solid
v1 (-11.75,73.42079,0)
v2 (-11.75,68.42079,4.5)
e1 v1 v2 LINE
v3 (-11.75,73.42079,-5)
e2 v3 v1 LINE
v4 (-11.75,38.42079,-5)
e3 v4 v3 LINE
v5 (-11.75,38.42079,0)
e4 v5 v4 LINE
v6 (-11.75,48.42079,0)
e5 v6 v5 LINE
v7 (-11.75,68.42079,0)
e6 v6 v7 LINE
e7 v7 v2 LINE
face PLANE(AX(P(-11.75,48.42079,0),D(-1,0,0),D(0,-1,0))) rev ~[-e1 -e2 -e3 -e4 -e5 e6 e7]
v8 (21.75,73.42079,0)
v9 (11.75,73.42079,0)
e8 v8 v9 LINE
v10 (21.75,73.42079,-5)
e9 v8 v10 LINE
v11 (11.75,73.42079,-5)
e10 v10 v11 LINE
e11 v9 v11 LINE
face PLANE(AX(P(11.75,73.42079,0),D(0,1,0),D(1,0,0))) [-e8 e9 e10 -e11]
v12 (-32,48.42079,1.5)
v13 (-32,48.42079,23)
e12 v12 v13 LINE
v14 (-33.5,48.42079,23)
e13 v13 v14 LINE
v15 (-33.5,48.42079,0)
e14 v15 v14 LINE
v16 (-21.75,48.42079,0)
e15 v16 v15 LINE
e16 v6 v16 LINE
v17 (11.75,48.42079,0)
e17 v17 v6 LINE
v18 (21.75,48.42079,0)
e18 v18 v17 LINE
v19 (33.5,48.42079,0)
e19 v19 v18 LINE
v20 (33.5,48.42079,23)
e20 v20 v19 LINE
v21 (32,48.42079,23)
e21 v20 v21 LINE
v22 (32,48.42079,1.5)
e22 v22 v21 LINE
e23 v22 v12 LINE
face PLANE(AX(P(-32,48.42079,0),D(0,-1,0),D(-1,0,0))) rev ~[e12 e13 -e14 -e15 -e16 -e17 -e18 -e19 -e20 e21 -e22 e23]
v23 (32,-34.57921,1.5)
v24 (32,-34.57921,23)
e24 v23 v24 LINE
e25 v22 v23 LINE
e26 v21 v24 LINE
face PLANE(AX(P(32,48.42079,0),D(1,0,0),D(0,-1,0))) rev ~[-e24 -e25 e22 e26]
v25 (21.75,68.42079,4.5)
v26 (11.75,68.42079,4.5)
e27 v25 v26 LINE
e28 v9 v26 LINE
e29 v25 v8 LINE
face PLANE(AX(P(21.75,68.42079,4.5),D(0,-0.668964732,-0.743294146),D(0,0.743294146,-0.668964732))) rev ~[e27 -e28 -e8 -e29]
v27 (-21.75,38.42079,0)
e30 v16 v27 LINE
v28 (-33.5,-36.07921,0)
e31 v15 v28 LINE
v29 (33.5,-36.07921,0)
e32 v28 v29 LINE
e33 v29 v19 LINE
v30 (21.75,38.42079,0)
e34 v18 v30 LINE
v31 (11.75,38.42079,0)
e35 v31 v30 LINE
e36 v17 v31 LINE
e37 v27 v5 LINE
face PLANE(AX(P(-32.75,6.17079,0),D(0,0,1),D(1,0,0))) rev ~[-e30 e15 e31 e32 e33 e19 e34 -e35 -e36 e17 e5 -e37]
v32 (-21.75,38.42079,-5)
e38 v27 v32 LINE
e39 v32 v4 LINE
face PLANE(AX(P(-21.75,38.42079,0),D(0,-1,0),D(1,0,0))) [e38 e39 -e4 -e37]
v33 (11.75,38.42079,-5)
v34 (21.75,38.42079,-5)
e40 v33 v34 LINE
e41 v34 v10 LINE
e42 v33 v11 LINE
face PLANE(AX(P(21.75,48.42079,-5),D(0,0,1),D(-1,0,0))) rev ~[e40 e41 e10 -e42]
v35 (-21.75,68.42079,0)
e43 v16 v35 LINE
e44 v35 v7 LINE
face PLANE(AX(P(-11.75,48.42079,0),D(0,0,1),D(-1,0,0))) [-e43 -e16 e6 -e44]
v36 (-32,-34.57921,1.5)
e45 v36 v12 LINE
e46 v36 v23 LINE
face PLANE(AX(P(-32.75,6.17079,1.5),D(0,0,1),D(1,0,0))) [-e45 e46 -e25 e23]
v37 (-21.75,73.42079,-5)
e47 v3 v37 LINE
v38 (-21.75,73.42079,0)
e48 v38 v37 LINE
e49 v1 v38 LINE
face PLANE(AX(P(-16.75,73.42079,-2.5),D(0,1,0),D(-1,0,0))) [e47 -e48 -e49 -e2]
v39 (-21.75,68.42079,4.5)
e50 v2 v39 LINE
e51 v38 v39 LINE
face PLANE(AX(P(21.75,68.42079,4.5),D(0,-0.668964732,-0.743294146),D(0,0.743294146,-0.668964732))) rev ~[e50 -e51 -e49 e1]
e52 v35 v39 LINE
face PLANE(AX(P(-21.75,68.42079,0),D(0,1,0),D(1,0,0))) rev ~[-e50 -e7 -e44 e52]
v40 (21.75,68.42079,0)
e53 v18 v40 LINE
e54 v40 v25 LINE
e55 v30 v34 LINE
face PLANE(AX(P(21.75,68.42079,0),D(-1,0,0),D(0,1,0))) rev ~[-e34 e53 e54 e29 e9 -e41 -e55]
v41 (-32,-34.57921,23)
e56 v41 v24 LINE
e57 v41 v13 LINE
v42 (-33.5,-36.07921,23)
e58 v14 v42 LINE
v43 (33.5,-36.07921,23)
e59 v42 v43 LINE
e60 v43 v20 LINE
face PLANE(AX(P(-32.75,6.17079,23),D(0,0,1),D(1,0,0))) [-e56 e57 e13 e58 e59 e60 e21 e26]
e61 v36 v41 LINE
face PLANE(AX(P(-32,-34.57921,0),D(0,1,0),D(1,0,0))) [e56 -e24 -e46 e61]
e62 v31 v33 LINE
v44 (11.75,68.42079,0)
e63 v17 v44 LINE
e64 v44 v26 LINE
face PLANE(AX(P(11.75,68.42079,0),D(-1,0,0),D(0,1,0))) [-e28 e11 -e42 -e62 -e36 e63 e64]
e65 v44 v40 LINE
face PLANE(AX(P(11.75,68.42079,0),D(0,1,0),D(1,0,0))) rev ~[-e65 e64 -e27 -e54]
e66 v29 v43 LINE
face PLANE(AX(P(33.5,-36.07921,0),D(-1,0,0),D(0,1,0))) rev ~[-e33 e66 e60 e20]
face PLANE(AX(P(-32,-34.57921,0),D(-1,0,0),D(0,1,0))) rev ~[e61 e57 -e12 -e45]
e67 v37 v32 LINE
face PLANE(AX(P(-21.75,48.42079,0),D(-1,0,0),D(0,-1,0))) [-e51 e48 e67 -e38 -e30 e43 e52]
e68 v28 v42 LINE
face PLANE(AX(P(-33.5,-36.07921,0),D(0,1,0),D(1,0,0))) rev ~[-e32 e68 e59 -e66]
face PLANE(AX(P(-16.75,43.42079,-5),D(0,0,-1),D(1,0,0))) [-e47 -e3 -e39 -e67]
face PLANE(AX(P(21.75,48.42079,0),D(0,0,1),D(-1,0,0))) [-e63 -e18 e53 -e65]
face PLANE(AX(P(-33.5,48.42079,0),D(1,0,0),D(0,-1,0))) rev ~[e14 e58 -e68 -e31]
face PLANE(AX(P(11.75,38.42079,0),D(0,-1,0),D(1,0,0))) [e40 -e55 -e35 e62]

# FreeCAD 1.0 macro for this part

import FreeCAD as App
import Part
import Sketcher

V = App.Vector
Q = App.Units.Quantity


def add_polygon(sketch, points):
    """Adds a closed chain of lines whose ends are joined by coincident constraints."""
    first, n = sketch.GeometryCount, len(points)
    for a, b in zip(points, points[1:] + points[:1]):
        sketch.addGeometry(Part.LineSegment(App.Vector(*a, 0), App.Vector(*b, 0)), False)
    for i in range(n):
        sketch.addConstraint(Sketcher.Constraint("Coincident", first + i, 2, first + (i + 1) % n, 1))

doc = App.newDocument("Part")
body = doc.addObject("PartDesign::Body", "Body")

sketch1 = body.newObject("Sketcher::SketchObject", "Sketch")
sketch1.AttachmentSupport = (doc.getObject("XY_Plane"), [""])
sketch1.MapMode = "FlatFace"
add_polygon(sketch1, [(-32, 48.4), (-33.5, 48.4), (-33.5, -36.1), (33.5, -36.1), (33.5, 48.4), (32, 48.4), (32, -34.6), (-32, -34.6)])
sketch1.addConstraint([
    Sketcher.Constraint("Horizontal", 0),
    Sketcher.Constraint("Vertical", 1),
    Sketcher.Constraint("Horizontal", 2),
    Sketcher.Constraint("Vertical", 3),
    Sketcher.Constraint("Horizontal", 4),
    Sketcher.Constraint("Vertical", 5),
    Sketcher.Constraint("Horizontal", 6),
    Sketcher.Constraint("Vertical", 7),
    Sketcher.Constraint("Symmetric", 0, 2, 3, 2, -2),
    Sketcher.Constraint("Equal", 0, 4),
    Sketcher.Constraint("DistanceX", 2, 1, 2, 2, Q("67 mm")),
    Sketcher.Constraint("DistanceX", 6, 2, 6, 1, Q("64 mm")),
    Sketcher.Constraint("DistanceY", 5, 2, 5, 1, Q("83 mm")),
    Sketcher.Constraint("DistanceY", 1, 2, 1, 1, Q("84.5 mm")),
    Sketcher.Constraint("DistanceY", -1, 1, 0, 2, Q("48.42079 mm")),
])
pad1 = body.newObject("PartDesign::Pad", "Pad")
pad1.Profile = sketch1
pad1.Length = 23

sketch2 = body.newObject("Sketcher::SketchObject", "Sketch001")
sketch2.AttachmentSupport = (doc.getObject("XY_Plane"), [""])
sketch2.MapMode = "FlatFace"
add_polygon(sketch2, [(-34, 48), (-34, -36), (34, -36), (34, 48)])
sketch2.addConstraint([
    Sketcher.Constraint("Vertical", 0),
    Sketcher.Constraint("Horizontal", 1),
    Sketcher.Constraint("Vertical", 2),
    Sketcher.Constraint("Horizontal", 3),
    Sketcher.Constraint("DistanceX", 1, 1, 1, 2, Q("67 mm")),
    Sketcher.Constraint("DistanceY", 0, 2, 0, 1, Q("84.5 mm")),
    Sketcher.Constraint("DistanceX", 0, 2, -1, 1, Q("33.5 mm")),
    Sketcher.Constraint("DistanceY", 0, 2, -1, 1, Q("36.07921 mm")),
])
pad2 = body.newObject("PartDesign::Pad", "Pad001")
pad2.Profile = sketch2
pad2.Length = 1.5

sketch3 = body.newObject("Sketcher::SketchObject", "Sketch002")
sketch3.AttachmentSupport = (doc.getObject("XY_Plane"), [""])
sketch3.MapMode = "FlatFace"
add_polygon(sketch3, [(12, 38), (12, 48), (22, 48), (22, 38)])
add_polygon(sketch3, [(-22, 38), (-22, 48), (-12, 48), (-12, 38)])
sketch3.addConstraint([
    Sketcher.Constraint("Vertical", 0),
    Sketcher.Constraint("Horizontal", 1),
    Sketcher.Constraint("Vertical", 2),
    Sketcher.Constraint("Horizontal", 3),
    Sketcher.Constraint("Vertical", 4),
    Sketcher.Constraint("Horizontal", 5),
    Sketcher.Constraint("Vertical", 6),
    Sketcher.Constraint("Horizontal", 7),
    Sketcher.Constraint("Symmetric", 1, 2, 4, 2, -2),
    Sketcher.Constraint("Symmetric", 3, 2, 6, 2, -2),
    Sketcher.Constraint("Equal", 7, 0),
    Sketcher.Constraint("DistanceX", 1, 1, 1, 2, Q("10 mm")),
    Sketcher.Constraint("DistanceX", 4, 2, 0, 2, Q("33.5 mm")),
    Sketcher.Constraint("DistanceY", -1, 1, 0, 2, Q("48.42079 mm")),
])
pad3 = body.newObject("PartDesign::Pad", "Pad002")
pad3.Profile = sketch3
pad3.Length = 5
pad3.Reversed = True

sketch4 = body.newObject("Sketcher::SketchObject", "Sketch003")
sketch4.AttachmentSupport = (doc.getObject("XZ_Plane"), [""])
sketch4.MapMode = "FlatFace"
sketch4.AttachmentOffset = App.Placement(V(0, 0, -48.42079), App.Rotation())
add_polygon(sketch4, [(22, 0), (22, -5), (12, -5), (12, 0)])
add_polygon(sketch4, [(-12, 0), (-12, -5), (-22, -5), (-22, 0)])
sketch4.addConstraint([
    Sketcher.Constraint("Vertical", 0),
    Sketcher.Constraint("Horizontal", 1),
    Sketcher.Constraint("Vertical", 2),
    Sketcher.Constraint("Horizontal", 3),
    Sketcher.Constraint("Vertical", 4),
    Sketcher.Constraint("Horizontal", 5),
    Sketcher.Constraint("Vertical", 6),
    Sketcher.Constraint("Horizontal", 7),
    Sketcher.Constraint("Symmetric", 3, 2, 6, 2, -1, 1),
    Sketcher.Constraint("Symmetric", 1, 2, 4, 2, -2),
    Sketcher.Constraint("PointOnObject", 2, 2, -1),
    Sketcher.Constraint("DistanceX", 1, 2, 1, 1, Q("10 mm")),
    Sketcher.Constraint("DistanceY", 0, 2, 0, 1, Q("5 mm")),
    Sketcher.Constraint("DistanceX", 4, 2, 1, 2, Q("23.5 mm")),
])
pad4 = body.newObject("PartDesign::Pad", "Pad003")
pad4.Profile = sketch4
pad4.Length = 25
pad4.Reversed = True

sketch5 = body.newObject("Sketcher::SketchObject", "Sketch004")
sketch5.AttachmentSupport = (doc.getObject("XY_Plane"), [""])
sketch5.MapMode = "FlatFace"
add_polygon(sketch5, [(12, 73), (12, 68), (22, 68), (22, 73)])
add_polygon(sketch5, [(-22, 73), (-22, 68), (-12, 68), (-12, 73)])
sketch5.addConstraint([
    Sketcher.Constraint("Vertical", 0),
    Sketcher.Constraint("Horizontal", 1),
    Sketcher.Constraint("Vertical", 2),
    Sketcher.Constraint("Horizontal", 3),
    Sketcher.Constraint("Vertical", 4),
    Sketcher.Constraint("Horizontal", 5),
    Sketcher.Constraint("Vertical", 6),
    Sketcher.Constraint("Horizontal", 7),
    Sketcher.Constraint("Symmetric", 1, 2, 4, 2, -2),
    Sketcher.Constraint("Symmetric", 3, 2, 6, 2, -2),
    Sketcher.Constraint("DistanceX", 1, 1, 1, 2, Q("10 mm")),
    Sketcher.Constraint("DistanceY", 0, 2, 0, 1, Q("5 mm")),
    Sketcher.Constraint("DistanceX", 4, 2, 0, 2, Q("33.5 mm")),
    Sketcher.Constraint("DistanceY", -1, 1, 0, 2, Q("68.42079 mm")),
])
pad5 = body.newObject("PartDesign::Pad", "Pad004")
pad5.Profile = sketch5
pad5.Length = 5

sketch6 = body.newObject("Sketcher::SketchObject", "Sketch005")
sketch6.AttachmentSupport = (doc.getObject("YZ_Plane"), [""])
sketch6.MapMode = "FlatFace"
sketch6.AttachmentOffset = App.Placement(V(0, 0, 21.75), App.Rotation())
add_polygon(sketch6, [(73.4, 5), (68.4, 5), (68.4, 4.5), (73.4, 0)])
sketch6.addConstraint([
    Sketcher.Constraint("Horizontal", 0),
    Sketcher.Constraint("Vertical", 1),
    Sketcher.Constraint("Vertical", 3),
    Sketcher.Constraint("PointOnObject", 2, 2, -1),
    Sketcher.Constraint("Equal", 0, 3),
    Sketcher.Constraint("DistanceX", 0, 2, 0, 1, Q("5 mm")),
    Sketcher.Constraint("DistanceY", 1, 2, 1, 1, Q("0.5 mm")),
    Sketcher.Constraint("DistanceX", -1, 1, 0, 2, Q("68.42079 mm")),
])
pocket1 = body.newObject("PartDesign::Pocket", "Pocket")
pocket1.Profile = sketch6
pocket1.Length = 47.7

doc.recompute()
